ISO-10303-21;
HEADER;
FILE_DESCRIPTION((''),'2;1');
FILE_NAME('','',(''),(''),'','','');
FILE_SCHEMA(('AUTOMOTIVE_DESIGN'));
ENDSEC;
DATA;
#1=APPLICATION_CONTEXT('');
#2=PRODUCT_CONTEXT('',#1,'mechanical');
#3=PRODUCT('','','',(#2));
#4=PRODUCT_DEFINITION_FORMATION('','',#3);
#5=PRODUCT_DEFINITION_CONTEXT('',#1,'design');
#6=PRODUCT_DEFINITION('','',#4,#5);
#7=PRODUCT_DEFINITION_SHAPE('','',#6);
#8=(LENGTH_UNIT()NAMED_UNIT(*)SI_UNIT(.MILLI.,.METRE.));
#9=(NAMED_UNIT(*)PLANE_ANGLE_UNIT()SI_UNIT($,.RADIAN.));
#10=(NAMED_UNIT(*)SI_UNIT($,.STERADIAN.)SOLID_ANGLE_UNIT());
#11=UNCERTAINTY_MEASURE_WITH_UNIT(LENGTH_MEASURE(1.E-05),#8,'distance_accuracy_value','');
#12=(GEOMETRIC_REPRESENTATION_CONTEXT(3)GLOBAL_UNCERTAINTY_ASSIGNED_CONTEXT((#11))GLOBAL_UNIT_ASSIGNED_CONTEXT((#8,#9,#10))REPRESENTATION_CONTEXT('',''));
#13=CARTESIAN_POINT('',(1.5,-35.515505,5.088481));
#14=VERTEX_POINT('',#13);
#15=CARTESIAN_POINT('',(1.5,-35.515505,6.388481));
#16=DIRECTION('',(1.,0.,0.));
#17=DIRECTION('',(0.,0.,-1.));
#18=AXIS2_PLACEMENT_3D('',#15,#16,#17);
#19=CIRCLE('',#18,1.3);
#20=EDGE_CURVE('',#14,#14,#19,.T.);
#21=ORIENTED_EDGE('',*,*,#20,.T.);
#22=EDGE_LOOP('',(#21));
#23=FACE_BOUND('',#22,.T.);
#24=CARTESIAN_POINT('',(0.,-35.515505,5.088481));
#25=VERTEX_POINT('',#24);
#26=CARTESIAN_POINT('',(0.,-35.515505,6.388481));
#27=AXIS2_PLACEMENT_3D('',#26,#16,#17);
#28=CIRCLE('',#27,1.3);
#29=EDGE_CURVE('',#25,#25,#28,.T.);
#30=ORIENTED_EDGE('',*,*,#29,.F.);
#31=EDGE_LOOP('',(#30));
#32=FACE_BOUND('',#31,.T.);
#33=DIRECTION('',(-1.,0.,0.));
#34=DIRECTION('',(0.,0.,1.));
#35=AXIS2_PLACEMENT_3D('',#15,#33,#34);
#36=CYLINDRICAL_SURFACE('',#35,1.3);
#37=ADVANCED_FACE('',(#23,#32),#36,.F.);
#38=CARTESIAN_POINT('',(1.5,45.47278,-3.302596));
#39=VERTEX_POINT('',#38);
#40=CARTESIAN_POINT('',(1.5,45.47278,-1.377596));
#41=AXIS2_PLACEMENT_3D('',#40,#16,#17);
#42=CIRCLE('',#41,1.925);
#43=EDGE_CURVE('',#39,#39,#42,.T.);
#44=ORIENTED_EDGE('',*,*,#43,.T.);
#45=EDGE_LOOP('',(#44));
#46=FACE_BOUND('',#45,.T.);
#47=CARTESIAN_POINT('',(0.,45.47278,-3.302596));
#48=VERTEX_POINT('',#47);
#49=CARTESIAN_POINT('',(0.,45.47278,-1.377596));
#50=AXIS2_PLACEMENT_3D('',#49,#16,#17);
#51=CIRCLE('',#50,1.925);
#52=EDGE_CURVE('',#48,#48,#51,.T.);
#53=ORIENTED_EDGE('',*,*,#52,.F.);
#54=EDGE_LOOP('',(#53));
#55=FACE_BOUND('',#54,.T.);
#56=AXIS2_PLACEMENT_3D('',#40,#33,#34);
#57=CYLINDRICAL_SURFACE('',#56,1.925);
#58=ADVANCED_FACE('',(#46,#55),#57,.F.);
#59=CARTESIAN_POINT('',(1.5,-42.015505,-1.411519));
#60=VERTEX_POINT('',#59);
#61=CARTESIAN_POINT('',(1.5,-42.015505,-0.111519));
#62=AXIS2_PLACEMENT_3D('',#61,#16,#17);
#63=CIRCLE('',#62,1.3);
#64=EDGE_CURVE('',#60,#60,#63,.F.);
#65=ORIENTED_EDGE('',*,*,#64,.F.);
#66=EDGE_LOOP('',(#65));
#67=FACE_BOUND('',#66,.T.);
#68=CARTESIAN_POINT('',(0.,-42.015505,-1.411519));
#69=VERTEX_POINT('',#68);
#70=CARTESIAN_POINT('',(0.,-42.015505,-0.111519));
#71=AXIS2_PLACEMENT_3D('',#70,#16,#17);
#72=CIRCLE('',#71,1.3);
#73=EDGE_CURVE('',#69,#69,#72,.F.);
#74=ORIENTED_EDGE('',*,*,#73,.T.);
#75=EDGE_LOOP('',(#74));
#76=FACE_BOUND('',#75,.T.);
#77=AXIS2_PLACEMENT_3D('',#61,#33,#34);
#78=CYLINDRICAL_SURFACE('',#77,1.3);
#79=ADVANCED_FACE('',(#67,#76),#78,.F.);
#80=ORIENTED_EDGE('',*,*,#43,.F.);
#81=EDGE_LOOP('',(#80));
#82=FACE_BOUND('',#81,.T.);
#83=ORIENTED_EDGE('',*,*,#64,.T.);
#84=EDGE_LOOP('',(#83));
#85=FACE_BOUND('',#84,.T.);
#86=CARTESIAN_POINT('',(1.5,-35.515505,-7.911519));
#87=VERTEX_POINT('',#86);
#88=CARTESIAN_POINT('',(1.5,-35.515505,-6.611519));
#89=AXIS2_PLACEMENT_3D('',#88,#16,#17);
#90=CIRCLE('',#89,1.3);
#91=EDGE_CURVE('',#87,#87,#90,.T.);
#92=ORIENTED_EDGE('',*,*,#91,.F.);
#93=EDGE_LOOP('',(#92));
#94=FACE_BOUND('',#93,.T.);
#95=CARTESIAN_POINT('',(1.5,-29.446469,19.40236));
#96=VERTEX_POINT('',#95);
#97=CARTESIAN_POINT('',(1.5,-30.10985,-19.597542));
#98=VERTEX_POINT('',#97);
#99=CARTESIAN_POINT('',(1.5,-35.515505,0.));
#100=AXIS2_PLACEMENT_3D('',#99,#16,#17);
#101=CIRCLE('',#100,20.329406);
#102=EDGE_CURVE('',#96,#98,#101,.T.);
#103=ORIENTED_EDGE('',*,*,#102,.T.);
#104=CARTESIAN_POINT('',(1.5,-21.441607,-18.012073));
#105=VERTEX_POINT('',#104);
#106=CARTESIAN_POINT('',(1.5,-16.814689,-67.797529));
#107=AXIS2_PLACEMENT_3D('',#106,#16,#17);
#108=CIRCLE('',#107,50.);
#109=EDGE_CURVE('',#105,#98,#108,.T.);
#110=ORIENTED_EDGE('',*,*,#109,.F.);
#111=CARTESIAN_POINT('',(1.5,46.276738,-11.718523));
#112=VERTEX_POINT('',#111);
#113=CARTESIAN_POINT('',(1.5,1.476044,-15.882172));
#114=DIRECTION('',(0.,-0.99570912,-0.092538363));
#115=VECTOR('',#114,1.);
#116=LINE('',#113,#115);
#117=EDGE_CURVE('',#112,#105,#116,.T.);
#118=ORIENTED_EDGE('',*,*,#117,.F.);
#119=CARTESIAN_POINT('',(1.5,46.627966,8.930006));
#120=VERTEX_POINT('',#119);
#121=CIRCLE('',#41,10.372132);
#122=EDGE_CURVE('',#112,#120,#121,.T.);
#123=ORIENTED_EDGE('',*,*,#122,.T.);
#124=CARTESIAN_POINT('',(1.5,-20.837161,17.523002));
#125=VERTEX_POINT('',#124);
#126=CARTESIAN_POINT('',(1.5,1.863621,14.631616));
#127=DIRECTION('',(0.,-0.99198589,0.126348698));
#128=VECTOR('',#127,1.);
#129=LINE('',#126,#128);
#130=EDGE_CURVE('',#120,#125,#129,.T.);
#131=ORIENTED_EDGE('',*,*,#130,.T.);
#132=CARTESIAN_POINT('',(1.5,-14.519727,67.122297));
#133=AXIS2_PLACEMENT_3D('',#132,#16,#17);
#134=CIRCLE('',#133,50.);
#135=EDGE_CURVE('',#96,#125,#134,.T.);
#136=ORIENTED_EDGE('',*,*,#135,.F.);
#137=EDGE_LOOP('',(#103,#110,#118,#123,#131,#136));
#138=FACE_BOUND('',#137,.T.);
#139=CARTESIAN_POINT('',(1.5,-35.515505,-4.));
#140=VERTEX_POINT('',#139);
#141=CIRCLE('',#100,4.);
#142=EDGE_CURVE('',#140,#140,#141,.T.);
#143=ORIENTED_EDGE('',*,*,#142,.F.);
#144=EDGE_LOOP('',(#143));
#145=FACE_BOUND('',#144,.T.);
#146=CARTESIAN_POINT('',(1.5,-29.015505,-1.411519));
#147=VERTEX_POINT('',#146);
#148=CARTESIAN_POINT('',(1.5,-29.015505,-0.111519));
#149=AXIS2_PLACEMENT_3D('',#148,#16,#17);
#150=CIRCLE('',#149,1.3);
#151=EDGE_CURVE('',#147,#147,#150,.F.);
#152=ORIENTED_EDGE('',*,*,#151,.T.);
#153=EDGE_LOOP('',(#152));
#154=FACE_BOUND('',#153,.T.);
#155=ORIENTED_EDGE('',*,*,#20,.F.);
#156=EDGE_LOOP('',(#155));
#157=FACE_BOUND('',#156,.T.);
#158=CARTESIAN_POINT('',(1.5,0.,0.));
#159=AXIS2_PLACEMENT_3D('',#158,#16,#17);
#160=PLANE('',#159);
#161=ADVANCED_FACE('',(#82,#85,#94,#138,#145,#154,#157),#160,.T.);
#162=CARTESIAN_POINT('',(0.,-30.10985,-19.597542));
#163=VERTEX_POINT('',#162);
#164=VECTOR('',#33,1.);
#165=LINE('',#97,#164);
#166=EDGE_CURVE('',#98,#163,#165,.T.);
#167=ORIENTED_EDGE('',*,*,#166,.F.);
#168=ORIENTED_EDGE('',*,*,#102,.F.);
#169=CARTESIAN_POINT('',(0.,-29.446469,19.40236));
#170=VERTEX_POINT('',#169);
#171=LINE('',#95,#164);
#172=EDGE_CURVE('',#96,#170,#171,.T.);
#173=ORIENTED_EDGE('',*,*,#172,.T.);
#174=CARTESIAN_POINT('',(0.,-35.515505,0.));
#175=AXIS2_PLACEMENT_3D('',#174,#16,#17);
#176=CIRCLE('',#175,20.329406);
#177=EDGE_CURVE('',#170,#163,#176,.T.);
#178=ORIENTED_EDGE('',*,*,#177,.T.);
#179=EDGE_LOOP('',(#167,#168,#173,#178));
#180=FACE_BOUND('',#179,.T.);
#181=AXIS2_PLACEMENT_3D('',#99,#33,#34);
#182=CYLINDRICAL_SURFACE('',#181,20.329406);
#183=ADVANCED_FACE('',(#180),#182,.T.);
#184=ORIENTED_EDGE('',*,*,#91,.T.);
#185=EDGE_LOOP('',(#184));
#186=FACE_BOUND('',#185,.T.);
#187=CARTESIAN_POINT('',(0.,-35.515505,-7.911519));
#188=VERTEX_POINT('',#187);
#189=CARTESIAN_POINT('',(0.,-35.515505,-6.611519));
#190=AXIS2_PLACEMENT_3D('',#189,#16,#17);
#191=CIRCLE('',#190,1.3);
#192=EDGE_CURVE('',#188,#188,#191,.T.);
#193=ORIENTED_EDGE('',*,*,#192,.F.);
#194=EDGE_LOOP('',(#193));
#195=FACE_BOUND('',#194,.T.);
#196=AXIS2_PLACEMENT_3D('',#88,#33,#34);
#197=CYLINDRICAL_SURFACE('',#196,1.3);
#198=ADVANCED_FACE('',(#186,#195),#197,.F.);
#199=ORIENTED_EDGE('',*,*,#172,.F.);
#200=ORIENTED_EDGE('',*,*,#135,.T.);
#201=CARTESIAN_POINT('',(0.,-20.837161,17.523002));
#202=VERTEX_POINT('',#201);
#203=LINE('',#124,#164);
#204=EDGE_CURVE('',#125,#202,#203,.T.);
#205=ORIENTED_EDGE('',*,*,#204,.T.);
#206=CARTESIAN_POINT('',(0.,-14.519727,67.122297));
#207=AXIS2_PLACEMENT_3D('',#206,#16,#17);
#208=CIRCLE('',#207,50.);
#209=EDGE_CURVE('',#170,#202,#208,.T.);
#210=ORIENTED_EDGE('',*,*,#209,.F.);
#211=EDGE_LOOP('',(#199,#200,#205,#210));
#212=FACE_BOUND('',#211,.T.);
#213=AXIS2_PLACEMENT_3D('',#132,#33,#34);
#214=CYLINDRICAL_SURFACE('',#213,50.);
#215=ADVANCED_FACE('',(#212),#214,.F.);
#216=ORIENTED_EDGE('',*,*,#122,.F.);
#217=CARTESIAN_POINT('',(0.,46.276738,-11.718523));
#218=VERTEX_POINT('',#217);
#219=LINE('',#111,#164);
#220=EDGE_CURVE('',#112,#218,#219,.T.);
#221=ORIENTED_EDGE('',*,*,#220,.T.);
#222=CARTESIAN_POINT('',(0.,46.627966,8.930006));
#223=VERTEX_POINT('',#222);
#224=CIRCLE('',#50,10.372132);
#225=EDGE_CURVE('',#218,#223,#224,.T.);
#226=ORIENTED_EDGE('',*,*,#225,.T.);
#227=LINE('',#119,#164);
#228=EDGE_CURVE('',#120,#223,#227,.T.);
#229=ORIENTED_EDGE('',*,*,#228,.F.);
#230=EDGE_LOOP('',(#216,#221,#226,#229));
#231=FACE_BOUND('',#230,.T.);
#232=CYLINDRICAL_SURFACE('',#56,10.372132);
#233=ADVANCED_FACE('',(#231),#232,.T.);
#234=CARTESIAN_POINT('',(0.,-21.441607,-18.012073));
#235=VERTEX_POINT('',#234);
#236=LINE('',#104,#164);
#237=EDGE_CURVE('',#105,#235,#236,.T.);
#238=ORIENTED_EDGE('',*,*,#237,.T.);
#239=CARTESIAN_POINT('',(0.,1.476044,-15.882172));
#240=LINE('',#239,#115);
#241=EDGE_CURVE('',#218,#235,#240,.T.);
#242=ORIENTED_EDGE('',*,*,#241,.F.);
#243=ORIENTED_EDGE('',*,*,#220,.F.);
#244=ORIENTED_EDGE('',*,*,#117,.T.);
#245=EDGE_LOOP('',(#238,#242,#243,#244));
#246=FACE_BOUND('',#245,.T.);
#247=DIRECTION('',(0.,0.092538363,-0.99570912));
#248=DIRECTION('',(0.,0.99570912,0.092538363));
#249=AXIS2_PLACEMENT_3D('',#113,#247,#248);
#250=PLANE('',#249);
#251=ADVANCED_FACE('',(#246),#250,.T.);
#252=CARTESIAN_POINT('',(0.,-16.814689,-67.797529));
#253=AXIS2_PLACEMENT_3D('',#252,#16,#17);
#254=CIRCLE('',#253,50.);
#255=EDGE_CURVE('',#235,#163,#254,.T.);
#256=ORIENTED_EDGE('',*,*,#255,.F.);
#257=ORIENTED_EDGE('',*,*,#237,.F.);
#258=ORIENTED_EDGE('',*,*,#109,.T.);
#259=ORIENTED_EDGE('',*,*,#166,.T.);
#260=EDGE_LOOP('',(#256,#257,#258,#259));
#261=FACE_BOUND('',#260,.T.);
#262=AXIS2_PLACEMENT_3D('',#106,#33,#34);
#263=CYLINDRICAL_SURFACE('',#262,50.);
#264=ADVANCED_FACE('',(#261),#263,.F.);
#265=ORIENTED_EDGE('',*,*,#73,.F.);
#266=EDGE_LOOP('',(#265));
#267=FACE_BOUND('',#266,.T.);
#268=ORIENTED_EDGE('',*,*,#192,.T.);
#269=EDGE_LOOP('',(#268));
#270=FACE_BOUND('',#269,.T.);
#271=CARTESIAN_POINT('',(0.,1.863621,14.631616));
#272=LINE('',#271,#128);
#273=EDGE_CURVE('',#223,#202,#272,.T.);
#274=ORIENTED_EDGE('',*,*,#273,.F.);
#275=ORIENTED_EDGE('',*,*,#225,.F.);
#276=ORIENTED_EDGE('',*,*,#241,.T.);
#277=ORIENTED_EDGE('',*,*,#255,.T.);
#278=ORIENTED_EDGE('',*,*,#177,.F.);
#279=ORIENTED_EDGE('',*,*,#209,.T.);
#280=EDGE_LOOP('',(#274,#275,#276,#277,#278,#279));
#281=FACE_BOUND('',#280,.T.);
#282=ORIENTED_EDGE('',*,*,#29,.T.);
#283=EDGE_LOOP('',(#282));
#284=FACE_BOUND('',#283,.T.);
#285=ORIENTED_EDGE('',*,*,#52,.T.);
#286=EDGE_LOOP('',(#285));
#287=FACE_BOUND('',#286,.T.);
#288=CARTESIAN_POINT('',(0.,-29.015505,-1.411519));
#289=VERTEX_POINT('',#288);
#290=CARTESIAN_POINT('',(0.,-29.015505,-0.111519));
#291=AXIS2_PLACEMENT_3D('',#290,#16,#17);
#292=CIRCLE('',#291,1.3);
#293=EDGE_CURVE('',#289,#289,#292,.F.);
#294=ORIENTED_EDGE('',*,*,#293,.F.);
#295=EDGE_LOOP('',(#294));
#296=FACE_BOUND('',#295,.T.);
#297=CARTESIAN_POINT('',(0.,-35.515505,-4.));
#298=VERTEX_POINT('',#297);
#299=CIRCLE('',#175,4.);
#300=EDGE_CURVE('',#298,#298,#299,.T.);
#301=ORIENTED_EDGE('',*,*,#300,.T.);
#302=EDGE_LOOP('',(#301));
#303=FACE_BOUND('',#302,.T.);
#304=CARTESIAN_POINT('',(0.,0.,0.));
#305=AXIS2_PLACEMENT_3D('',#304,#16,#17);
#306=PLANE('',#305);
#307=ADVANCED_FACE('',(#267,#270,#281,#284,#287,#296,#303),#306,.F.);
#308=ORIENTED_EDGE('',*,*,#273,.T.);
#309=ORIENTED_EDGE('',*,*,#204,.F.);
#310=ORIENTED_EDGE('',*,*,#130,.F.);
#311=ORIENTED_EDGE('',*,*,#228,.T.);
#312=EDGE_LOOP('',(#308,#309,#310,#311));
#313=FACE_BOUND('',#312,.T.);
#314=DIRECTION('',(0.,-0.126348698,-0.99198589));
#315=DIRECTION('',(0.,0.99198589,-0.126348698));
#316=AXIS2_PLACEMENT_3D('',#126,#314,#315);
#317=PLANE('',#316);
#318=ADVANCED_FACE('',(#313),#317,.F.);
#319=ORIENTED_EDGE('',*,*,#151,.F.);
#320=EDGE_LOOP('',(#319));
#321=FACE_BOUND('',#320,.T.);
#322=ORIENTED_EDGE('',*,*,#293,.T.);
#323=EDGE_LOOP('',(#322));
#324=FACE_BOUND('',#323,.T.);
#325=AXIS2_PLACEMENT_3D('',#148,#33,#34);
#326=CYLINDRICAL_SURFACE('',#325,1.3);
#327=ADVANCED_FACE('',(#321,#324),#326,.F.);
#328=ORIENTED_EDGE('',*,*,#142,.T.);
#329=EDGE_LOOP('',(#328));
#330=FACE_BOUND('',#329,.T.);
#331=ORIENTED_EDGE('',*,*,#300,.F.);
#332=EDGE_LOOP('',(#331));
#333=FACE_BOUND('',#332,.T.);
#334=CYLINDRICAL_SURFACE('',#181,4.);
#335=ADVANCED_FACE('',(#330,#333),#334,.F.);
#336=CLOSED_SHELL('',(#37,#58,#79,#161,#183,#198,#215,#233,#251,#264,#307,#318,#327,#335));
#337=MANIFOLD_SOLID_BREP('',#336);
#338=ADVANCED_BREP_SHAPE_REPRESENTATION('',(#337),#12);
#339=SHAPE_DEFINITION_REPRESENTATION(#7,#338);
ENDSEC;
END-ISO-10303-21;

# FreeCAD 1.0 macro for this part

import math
import FreeCAD as App
import Part
import Sketcher

V = App.Vector
Q = App.Units.Quantity

doc = App.newDocument("Part")
body = doc.addObject("PartDesign::Body", "Body")

sketch1 = body.newObject("Sketcher::SketchObject", "Sketch")
sketch1.AttachmentSupport = (doc.getObject("YZ_Plane"), [""])
sketch1.MapMode = "FlatFace"
sketch1.addGeometry(Part.LineSegment(V(-21.4, -18, 0), V(46.3, -11.7, 0)), False)
sketch1.addGeometry(Part.ArcOfCircle(Part.Circle(V(45.5, -1.4, 0), V(0, 0, 1), 10.4), math.radians(-86), math.radians(84)), False)
sketch1.addGeometry(Part.LineSegment(V(46.6, 8.9, 0), V(-20.8, 17.5, 0)), False)
sketch1.addGeometry(Part.ArcOfCircle(Part.Circle(V(-14.5, 67.1, 0), V(0, 0, 1), 50), math.radians(-107.37), math.radians(-97.26)), False)
sketch1.addGeometry(Part.ArcOfCircle(Part.Circle(V(-35.5, 0, 0), V(0, 0, 1), 20.3), math.radians(72.63), math.radians(80)), False)
sketch1.addGeometry(Part.ArcOfCircle(Part.Circle(V(-35.5, 0, 0), V(0, 0, 1), 20.3), math.radians(80), math.radians(278)), False)
sketch1.addGeometry(Part.ArcOfCircle(Part.Circle(V(-35.5, 0, 0), V(0, 0, 1), 20.3), math.radians(-81.95), math.radians(-74.58)), False)
sketch1.addGeometry(Part.ArcOfCircle(Part.Circle(V(-16.8, -67.8, 0), V(0, 0, 1), 50), math.radians(95.31), math.radians(105.42)), False)
sketch1.addGeometry(Part.Circle(V(-35.5, 6.4, 0), V(0, 0, 1), 1.3), False)
sketch1.addGeometry(Part.Circle(V(-35.5, 0, 0), V(0, 0, 1), 4), False)
sketch1.addGeometry(Part.Circle(V(-42, -0.1, 0), V(0, 0, 1), 1.3), False)
sketch1.addGeometry(Part.Circle(V(-29, -0.1, 0), V(0, 0, 1), 1.3), False)
sketch1.addGeometry(Part.Circle(V(-35.5, -6.6, 0), V(0, 0, 1), 1.3), False)
sketch1.addGeometry(Part.Circle(V(45.5, -1.4, 0), V(0, 0, 1), 1.9), False)
sketch1.addConstraint(Sketcher.Constraint("Coincident", 0, 2, 1, 1))
sketch1.addConstraint(Sketcher.Constraint("Coincident", 1, 2, 2, 1))
sketch1.addConstraint(Sketcher.Constraint("Tangent", 2, 2, 3, 2))
sketch1.addConstraint(Sketcher.Constraint("Tangent", 3, 1, 4, 1))
sketch1.addConstraint(Sketcher.Constraint("Tangent", 4, 2, 5, 1))
sketch1.addConstraint(Sketcher.Constraint("Tangent", 5, 2, 6, 1))
sketch1.addConstraint(Sketcher.Constraint("Tangent", 6, 2, 7, 2))
sketch1.addConstraint(Sketcher.Constraint("Tangent", 7, 1, 0, 1))
sketch1.addConstraint(Sketcher.Constraint("Coincident", 6, 3, 4, 3))
sketch1.addConstraint(Sketcher.Constraint("Coincident", 9, 3, 4, 3))
sketch1.addConstraint(Sketcher.Constraint("Coincident", 13, 3, 1, 3))
sketch1.addConstraint(Sketcher.Constraint("Equal", 3, 7))
sketch1.addConstraint(Sketcher.Constraint("Equal", 8, 10))
sketch1.addConstraint(Sketcher.Constraint("Equal", 10, 11))
sketch1.addConstraint(Sketcher.Constraint("Equal", 11, 12))
sketch1.addConstraint(Sketcher.Constraint("PointOnObject", 4, 3, -1))
sketch1.addConstraint(Sketcher.Constraint("Horizontal", 10, 3, 11, 3))
sketch1.addConstraint(Sketcher.Constraint("Vertical", 6, 3, 8, 3))
sketch1.addConstraint(Sketcher.Constraint("Vertical", 9, 3, 12, 3))
sketch1.addConstraint(Sketcher.Constraint("Equal", 0, 2))
sketch1.addConstraint(Sketcher.Constraint("Diameter", 9, Q("8 mm")))
sketch1.addConstraint(Sketcher.Constraint("Radius", 3, Q("50 mm")))
sketch1.addConstraint(Sketcher.Constraint("Diameter", 8, Q("2.6 mm")))
sketch1.addConstraint(Sketcher.Constraint("Diameter", 13, Q("3.85 mm")))
sketch1.addConstraint(Sketcher.Constraint("DistanceX", 10, 3, 5, 3, Q("6.5 mm")))
sketch1.addConstraint(Sketcher.Constraint("DistanceY", 10, 3, 8, 3, Q("6.5 mm")))
sketch1.addConstraint(Sketcher.Constraint("DistanceX", 6, 3, 11, 3, Q("6.5 mm")))
sketch1.addConstraint(Sketcher.Constraint("DistanceY", 12, 3, 10, 3, Q("6.5 mm")))
sketch1.addConstraint(Sketcher.Constraint("Radius", 1, Q("10.372132 mm")))
sketch1.addConstraint(Sketcher.Constraint("Radius", 4, Q("20.329406 mm")))
sketch1.addConstraint(Sketcher.Constraint("DistanceY", 4, 3, 2, 2, Q("17.523002 mm")))
sketch1.addConstraint(Sketcher.Constraint("DistanceX", 8, 3, 4, 2, Q("3.528802 mm")))
sketch1.addConstraint(Sketcher.Constraint("DistanceX", 12, 3, 7, 1, Q("14.073898 mm")))
sketch1.addConstraint(Sketcher.Constraint("Distance", 0, Q("68.010168 mm")))
sketch1.addConstraint(Sketcher.Constraint("DistanceX", -1, 1, 1, 3, Q("45.47278 mm")))
sketch1.addConstraint(Sketcher.Constraint("DistanceX", 7, 3, -1, 1, Q("16.814688 mm")))
sketch1.addConstraint(Sketcher.Constraint("DistanceY", 7, 3, -1, 1, Q("67.797529 mm")))
sketch1.addConstraint(Sketcher.Constraint("DistanceY", -1, 1, 8, 3, Q("6.388481 mm")))
sketch1.addConstraint(Sketcher.Constraint("DistanceX", 5, 2, -1, 1, Q("32.669648 mm")))
pad1 = body.newObject("PartDesign::Pad", "Pad")
pad1.Profile = sketch1
pad1.Length = 1.5

doc.recompute()
